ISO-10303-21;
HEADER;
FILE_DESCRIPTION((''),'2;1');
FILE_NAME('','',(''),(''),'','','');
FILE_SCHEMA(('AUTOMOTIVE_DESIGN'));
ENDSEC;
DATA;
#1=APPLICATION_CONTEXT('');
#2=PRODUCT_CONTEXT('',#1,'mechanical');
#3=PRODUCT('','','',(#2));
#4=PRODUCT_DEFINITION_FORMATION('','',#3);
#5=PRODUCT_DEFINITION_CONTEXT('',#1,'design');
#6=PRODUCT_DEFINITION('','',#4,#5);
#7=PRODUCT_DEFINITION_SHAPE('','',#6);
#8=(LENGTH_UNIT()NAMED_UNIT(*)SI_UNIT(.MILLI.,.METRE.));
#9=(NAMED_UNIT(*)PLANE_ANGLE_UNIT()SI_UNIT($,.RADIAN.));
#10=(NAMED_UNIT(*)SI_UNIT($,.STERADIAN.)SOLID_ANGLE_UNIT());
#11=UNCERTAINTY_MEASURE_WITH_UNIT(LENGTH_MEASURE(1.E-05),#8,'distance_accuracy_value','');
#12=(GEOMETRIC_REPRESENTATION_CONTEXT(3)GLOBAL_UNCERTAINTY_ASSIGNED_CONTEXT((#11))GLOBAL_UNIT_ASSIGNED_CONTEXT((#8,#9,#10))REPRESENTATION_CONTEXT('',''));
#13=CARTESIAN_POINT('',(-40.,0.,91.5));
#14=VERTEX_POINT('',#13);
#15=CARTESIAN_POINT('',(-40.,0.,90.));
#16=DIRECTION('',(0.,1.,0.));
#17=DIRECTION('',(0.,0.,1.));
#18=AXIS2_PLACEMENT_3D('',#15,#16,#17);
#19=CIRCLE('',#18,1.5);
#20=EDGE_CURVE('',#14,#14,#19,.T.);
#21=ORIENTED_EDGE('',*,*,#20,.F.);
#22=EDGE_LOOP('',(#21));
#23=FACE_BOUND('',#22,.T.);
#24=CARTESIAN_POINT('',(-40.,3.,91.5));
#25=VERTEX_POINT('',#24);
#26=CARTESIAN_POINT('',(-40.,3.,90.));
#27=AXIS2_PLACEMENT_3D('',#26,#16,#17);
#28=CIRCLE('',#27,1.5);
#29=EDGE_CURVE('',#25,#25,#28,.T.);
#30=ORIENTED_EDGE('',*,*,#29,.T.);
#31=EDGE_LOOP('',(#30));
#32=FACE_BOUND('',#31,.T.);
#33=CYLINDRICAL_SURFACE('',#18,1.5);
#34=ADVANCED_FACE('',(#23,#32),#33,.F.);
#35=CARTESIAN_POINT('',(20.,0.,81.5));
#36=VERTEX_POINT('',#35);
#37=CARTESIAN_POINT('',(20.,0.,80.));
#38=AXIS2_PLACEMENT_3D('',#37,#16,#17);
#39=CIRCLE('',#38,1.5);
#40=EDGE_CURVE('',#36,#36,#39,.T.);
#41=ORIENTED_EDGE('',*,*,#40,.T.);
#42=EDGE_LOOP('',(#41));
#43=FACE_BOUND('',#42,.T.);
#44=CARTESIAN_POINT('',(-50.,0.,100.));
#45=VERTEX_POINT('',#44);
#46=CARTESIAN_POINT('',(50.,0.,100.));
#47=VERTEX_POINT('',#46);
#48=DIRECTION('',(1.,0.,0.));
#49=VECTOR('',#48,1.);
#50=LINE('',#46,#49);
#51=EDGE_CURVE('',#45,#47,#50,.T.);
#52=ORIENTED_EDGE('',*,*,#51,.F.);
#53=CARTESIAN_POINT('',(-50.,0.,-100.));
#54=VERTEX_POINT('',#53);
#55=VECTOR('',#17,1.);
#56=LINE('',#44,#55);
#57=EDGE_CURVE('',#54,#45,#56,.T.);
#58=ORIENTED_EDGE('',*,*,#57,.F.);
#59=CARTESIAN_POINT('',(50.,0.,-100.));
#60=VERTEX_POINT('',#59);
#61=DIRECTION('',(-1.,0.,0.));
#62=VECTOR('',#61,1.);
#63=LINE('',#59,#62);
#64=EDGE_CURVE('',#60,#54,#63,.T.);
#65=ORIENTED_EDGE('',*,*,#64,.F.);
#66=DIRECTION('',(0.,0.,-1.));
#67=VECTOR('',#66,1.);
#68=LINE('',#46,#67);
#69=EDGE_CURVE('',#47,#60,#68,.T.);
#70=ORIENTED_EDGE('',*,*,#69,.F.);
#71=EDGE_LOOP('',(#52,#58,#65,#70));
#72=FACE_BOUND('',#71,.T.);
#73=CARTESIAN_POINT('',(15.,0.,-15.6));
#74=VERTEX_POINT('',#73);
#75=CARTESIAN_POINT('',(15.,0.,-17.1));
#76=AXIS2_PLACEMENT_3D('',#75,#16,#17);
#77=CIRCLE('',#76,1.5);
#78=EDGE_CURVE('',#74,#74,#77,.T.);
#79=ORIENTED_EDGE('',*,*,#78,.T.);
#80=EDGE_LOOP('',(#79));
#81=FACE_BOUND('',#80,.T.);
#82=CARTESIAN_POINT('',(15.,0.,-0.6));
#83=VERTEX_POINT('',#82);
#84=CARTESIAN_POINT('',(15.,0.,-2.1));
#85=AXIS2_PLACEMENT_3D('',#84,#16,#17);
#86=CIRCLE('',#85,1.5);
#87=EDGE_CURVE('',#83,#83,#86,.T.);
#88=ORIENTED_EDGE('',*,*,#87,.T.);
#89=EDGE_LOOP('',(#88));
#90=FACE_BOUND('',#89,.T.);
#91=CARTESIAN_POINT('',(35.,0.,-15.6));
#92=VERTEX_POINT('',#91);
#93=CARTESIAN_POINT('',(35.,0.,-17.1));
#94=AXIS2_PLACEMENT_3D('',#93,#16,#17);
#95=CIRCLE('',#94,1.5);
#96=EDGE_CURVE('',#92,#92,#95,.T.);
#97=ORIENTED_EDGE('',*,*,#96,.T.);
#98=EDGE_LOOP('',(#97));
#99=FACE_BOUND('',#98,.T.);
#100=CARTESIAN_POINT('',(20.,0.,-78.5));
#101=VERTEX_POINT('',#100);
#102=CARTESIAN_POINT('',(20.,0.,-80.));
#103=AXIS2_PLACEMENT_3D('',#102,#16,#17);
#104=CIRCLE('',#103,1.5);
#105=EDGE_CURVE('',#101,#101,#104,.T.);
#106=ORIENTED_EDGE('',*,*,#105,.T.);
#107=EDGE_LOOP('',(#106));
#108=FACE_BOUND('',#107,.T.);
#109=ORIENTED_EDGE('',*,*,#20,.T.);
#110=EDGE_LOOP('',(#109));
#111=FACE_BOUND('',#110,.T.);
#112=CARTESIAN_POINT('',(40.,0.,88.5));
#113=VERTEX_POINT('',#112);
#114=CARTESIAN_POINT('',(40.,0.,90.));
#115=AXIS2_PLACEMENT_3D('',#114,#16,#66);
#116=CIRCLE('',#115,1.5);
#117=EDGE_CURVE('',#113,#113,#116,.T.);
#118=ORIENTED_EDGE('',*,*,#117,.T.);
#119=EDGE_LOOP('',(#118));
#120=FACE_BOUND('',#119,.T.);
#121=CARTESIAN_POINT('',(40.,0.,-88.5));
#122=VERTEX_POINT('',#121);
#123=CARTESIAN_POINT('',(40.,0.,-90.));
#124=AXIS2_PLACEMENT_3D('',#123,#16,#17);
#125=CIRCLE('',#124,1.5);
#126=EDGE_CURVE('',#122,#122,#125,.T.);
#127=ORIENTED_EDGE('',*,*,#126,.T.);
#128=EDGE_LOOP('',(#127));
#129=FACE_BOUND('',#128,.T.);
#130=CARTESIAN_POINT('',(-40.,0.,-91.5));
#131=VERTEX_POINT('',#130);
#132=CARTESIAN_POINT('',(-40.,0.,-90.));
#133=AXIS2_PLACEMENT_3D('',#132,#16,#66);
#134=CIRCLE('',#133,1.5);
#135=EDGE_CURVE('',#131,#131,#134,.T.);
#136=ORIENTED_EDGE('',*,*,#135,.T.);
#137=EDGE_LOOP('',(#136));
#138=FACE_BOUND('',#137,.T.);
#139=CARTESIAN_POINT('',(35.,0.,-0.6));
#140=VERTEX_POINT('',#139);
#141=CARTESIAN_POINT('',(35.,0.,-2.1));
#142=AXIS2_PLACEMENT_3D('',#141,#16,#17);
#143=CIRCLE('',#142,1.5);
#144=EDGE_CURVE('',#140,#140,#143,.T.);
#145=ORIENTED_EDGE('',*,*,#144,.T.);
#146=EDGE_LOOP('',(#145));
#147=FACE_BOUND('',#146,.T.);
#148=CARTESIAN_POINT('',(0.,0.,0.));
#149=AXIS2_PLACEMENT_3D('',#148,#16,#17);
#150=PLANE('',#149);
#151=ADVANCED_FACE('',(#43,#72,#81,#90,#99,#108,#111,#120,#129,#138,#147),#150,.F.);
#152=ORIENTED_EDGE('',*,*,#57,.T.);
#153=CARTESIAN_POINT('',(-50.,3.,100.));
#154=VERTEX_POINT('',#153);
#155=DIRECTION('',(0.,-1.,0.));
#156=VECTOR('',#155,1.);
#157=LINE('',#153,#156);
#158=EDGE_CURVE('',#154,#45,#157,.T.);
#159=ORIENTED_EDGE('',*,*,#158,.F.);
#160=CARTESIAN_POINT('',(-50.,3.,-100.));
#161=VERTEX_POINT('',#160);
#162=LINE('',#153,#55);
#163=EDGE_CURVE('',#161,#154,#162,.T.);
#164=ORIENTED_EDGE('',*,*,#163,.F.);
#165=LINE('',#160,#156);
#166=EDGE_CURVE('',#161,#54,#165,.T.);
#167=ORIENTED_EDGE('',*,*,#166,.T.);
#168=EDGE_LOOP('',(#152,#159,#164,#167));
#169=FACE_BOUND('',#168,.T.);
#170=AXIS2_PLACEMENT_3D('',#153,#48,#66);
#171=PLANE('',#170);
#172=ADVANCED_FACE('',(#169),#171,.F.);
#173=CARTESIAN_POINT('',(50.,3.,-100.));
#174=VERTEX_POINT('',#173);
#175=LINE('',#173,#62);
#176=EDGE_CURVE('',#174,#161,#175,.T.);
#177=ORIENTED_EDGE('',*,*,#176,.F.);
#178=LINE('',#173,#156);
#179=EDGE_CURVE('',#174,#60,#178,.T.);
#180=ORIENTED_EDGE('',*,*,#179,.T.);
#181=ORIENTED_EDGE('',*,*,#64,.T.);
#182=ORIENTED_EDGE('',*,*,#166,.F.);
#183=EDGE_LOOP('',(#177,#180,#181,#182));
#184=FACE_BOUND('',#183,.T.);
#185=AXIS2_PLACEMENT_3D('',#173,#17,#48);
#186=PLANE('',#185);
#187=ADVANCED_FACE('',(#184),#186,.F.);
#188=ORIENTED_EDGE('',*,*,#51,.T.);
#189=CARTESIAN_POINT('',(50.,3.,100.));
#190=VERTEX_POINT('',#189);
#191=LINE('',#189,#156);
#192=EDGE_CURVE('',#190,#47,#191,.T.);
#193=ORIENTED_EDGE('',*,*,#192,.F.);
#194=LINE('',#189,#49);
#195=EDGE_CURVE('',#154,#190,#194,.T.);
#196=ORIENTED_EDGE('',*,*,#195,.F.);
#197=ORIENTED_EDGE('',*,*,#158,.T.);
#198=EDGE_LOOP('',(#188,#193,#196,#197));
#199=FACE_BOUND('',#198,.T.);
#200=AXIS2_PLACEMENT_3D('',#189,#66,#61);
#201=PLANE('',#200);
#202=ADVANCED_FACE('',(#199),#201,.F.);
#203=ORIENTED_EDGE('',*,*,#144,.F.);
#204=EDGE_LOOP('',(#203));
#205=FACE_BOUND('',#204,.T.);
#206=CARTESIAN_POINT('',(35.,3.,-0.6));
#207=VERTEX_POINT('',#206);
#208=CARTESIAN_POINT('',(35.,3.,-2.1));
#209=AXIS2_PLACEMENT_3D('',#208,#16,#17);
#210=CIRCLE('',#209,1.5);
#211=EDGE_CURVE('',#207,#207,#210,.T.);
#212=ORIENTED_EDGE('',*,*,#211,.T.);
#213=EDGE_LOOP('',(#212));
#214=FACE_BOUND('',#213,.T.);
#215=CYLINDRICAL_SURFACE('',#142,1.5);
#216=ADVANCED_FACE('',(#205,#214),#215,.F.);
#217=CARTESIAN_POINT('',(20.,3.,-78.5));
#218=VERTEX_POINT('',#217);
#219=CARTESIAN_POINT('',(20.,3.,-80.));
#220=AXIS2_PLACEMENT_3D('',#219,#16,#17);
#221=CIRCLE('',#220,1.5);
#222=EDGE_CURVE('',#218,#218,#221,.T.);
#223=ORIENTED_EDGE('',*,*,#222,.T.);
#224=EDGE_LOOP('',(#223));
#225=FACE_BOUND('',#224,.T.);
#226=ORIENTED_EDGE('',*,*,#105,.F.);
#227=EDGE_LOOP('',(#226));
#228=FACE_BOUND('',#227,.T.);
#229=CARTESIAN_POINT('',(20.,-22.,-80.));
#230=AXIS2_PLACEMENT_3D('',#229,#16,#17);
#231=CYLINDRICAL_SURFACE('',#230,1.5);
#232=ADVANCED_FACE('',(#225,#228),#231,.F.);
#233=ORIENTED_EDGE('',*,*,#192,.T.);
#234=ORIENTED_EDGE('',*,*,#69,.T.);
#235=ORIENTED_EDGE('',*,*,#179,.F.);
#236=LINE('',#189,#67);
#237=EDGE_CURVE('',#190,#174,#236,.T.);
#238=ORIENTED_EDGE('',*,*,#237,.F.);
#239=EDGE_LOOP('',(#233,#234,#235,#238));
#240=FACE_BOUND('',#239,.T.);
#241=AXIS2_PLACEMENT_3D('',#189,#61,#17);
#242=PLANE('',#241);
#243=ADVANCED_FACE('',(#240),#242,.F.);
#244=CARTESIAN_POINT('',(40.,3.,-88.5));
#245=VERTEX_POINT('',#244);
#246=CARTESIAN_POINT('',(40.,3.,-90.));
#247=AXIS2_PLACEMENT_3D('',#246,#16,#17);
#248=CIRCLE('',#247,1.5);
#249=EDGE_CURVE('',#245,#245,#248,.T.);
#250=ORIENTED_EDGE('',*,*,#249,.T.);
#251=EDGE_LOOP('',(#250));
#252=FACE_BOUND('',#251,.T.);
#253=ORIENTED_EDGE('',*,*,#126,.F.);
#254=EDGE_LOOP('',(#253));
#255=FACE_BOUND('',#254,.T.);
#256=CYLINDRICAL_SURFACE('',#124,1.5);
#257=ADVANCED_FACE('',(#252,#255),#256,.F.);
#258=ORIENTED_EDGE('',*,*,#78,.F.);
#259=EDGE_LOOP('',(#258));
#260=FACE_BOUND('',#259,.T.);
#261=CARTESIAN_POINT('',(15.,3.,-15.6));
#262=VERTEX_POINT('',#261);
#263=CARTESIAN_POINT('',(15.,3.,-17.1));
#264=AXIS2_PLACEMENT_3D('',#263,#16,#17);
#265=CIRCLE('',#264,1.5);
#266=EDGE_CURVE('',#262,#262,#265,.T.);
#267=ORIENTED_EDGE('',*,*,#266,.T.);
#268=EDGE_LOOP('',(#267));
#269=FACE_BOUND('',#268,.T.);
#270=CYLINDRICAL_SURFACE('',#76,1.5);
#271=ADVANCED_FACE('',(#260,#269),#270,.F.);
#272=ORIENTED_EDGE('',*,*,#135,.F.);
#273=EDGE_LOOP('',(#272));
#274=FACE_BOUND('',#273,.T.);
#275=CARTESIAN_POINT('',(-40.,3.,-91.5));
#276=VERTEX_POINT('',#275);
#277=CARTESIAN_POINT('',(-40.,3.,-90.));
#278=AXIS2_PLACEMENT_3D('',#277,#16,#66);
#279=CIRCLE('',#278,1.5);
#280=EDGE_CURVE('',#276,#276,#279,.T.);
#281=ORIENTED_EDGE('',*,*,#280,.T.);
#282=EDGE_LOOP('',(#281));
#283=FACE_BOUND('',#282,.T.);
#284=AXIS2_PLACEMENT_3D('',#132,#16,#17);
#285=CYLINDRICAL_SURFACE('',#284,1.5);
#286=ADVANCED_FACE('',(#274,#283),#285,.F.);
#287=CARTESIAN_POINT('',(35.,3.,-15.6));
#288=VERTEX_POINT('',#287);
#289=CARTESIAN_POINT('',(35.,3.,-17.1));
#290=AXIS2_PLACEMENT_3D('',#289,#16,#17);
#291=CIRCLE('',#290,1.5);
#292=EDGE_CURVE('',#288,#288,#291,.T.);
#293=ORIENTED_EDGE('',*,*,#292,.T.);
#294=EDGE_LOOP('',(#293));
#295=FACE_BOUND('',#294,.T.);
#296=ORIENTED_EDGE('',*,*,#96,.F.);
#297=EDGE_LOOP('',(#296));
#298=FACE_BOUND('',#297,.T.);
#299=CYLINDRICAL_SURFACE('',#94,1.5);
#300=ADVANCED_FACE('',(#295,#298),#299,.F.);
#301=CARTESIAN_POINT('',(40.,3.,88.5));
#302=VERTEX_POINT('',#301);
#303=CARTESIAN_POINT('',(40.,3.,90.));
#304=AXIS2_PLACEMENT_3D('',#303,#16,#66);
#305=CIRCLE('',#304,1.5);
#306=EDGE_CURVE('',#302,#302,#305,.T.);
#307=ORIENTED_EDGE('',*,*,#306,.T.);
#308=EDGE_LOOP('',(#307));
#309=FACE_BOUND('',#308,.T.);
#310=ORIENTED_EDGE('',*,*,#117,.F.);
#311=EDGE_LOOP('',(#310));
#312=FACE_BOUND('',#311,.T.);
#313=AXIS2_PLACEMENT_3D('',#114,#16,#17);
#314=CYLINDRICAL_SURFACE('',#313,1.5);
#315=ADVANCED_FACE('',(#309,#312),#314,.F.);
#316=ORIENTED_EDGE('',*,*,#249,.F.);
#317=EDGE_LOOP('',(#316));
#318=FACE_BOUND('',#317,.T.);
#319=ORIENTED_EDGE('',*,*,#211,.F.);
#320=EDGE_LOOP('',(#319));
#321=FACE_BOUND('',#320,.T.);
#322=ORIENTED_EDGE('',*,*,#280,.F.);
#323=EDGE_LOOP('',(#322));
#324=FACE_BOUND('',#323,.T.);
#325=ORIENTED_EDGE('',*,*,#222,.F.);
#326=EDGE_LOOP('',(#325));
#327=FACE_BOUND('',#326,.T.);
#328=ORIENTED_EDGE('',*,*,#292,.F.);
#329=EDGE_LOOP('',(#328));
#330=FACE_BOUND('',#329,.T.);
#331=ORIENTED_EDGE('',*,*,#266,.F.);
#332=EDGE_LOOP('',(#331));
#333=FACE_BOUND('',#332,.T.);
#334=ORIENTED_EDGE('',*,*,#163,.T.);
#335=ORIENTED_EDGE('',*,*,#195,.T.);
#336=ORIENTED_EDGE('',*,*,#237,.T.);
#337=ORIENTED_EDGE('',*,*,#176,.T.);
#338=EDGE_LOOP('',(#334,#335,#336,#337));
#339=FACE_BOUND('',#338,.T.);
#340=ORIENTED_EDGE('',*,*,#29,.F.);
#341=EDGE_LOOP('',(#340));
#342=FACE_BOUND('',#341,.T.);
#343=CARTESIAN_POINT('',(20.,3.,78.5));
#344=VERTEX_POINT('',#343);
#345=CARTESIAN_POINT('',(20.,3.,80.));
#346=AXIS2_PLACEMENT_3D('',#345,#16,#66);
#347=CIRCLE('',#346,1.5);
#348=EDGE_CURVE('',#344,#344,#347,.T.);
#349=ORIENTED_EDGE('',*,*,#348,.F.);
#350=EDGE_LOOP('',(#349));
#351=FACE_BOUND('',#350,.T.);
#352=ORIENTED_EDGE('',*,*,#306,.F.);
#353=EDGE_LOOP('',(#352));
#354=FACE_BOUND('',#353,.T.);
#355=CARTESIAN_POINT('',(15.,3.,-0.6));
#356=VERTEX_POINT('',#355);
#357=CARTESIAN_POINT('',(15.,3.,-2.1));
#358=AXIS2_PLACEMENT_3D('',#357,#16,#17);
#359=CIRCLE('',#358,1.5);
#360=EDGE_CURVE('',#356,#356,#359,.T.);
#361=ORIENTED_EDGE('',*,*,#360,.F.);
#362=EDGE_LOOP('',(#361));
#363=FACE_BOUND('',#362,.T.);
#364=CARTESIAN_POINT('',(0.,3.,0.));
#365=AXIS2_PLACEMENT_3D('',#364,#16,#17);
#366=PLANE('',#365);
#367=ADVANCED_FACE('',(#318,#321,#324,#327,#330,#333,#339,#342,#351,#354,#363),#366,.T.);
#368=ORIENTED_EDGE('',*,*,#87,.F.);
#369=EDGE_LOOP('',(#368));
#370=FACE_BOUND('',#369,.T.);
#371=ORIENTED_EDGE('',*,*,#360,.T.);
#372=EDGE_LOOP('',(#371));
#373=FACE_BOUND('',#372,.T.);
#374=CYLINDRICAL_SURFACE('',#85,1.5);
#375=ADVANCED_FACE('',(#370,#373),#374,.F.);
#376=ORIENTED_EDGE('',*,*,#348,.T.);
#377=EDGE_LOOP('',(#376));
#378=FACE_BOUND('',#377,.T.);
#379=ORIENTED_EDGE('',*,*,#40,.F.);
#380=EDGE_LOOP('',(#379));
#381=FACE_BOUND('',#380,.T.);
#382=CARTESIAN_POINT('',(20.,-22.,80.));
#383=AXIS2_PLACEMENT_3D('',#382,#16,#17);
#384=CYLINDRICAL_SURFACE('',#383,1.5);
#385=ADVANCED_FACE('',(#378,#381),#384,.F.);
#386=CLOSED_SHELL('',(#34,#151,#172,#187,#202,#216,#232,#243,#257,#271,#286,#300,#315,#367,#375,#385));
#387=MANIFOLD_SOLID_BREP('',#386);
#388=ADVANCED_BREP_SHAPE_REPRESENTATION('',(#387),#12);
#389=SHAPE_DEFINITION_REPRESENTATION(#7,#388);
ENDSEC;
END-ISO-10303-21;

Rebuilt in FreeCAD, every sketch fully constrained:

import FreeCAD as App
import Part
import Sketcher
from FreeCAD import Vector

doc = App.newDocument("Part")
body = doc.addObject("PartDesign::Body", "Body")

sketch1 = doc.addObject("Sketcher::SketchObject", "Sketch")
body.addObject(sketch1)
sketch1.AttachmentSupport = (doc.XZ_Plane, [""])
sketch1.MapMode = "FlatFace"
sketch1.addGeometry([
    Part.LineSegment(Vector(-50, -100, 0), Vector(-50, 100, 0)),
    Part.LineSegment(Vector(-50, 100, 0), Vector(50, 100, 0)),
    Part.LineSegment(Vector(50, 100, 0), Vector(50, -100, 0)),
    Part.LineSegment(Vector(50, -100, 0), Vector(-50, -100, 0)),
], False)
sketch1.addConstraint([
    Sketcher.Constraint("Coincident", 0, 2, 1, 1),
    Sketcher.Constraint("Coincident", 1, 2, 2, 1),
    Sketcher.Constraint("Coincident", 2, 2, 3, 1),
    Sketcher.Constraint("Coincident", 3, 2, 0, 1),
    Sketcher.Constraint("Vertical", 0),
    Sketcher.Constraint("Horizontal", 1),
    Sketcher.Constraint("Vertical", 2),
    Sketcher.Constraint("Horizontal", 3),
    Sketcher.Constraint("Symmetric", 0, 2, 2, 2, -1, 1),
    Sketcher.Constraint("DistanceX", 1, 1, 1, 2, 100.0),
    Sketcher.Constraint("DistanceY", 0, 1, 0, 2, 200.0),
])
pad1 = doc.addObject("PartDesign::Pad", "Pad")
body.addObject(pad1)
pad1.Profile = sketch1
pad1.Length = 3
pad1.Reversed = True

sketch2 = doc.addObject("Sketcher::SketchObject", "Sketch001")
body.addObject(sketch2)
sketch2.AttachmentSupport = (doc.XZ_Plane, [""])
sketch2.MapMode = "FlatFace"
sketch2.AttachmentOffset = App.Placement(Vector(0, 0, -3), App.Rotation())
sketch2.addGeometry([
    Part.Circle(Vector(-40, 90, 0), Vector(0, 0, 1), 1.5),
    Part.Circle(Vector(40, 90, 0), Vector(0, 0, 1), 1.5),
    Part.Circle(Vector(40, -90, 0), Vector(0, 0, 1), 1.5),
    Part.Circle(Vector(-40, -90, 0), Vector(0, 0, 1), 1.5),
], False)
sketch2.addConstraint([
    Sketcher.Constraint("Equal", 0, 1),
    Sketcher.Constraint("Equal", 1, 2),
    Sketcher.Constraint("Equal", 2, 3),
    Sketcher.Constraint("Symmetric", 0, 3, 2, 3, -1, 1),
    Sketcher.Constraint("Symmetric", 1, 3, 3, 3, -1, 1),
    Sketcher.Constraint("Symmetric", 0, 3, 1, 3, -2),
    Sketcher.Constraint("Diameter", 0, 3.0),
    Sketcher.Constraint("DistanceX", 0, 3, -1, 1, 40.0),
    Sketcher.Constraint("DistanceY", -1, 1, 0, 3, 90.0),
])
pocket1 = doc.addObject("PartDesign::Pocket", "Pocket")
body.addObject(pocket1)
pocket1.Profile = sketch2
pocket1.Length = 3
pocket1.Reversed = True

sketch3 = doc.addObject("Sketcher::SketchObject", "Sketch002")
body.addObject(sketch3)
sketch3.AttachmentSupport = (doc.XZ_Plane, [""])
sketch3.MapMode = "FlatFace"
sketch3.AttachmentOffset = App.Placement(Vector(0, 0, -3), App.Rotation())
sketch3.addGeometry([
    Part.Circle(Vector(20, -80, 0), Vector(0, 0, 1), 1.5),
    Part.Circle(Vector(20, 80, 0), Vector(0, 0, 1), 1.5),
], False)
sketch3.addConstraint([
    Sketcher.Constraint("Equal", 0, 1),
    Sketcher.Constraint("Symmetric", 0, 3, 1, 3, -1),
    Sketcher.Constraint("Diameter", 0, 3.0),
    Sketcher.Constraint("DistanceX", -1, 1, 0, 3, 20.0),
    Sketcher.Constraint("DistanceY", 0, 3, -1, 1, 80.0),
])
pocket2 = doc.addObject("PartDesign::Pocket", "Pocket001")
body.addObject(pocket2)
pocket2.Profile = sketch3
pocket2.Length = 25
pocket2.Reversed = True

sketch4 = doc.addObject("Sketcher::SketchObject", "Sketch003")
body.addObject(sketch4)
sketch4.AttachmentSupport = (doc.XZ_Plane, [""])
sketch4.MapMode = "FlatFace"
sketch4.AttachmentOffset = App.Placement(Vector(0, 0, -3), App.Rotation())
sketch4.addGeometry([
    Part.Circle(Vector(35, -17.1, 0), Vector(0, 0, 1), 1.5),
    Part.Circle(Vector(15, -2.1, 0), Vector(0, 0, 1), 1.5),
    Part.Circle(Vector(15, -17.1, 0), Vector(0, 0, 1), 1.5),
    Part.Circle(Vector(35, -2.1, 0), Vector(0, 0, 1), 1.5),
], False)
sketch4.addConstraint([
    Sketcher.Constraint("Equal", 0, 1),
    Sketcher.Constraint("Equal", 1, 2),
    Sketcher.Constraint("Equal", 2, 3),
    Sketcher.Constraint("Horizontal", 0, 3, 2, 3),
    Sketcher.Constraint("Horizontal", 1, 3, 3, 3),
    Sketcher.Constraint("Vertical", 1, 3, 2, 3),
    Sketcher.Constraint("Vertical", 0, 3, 3, 3),
    Sketcher.Constraint("Diameter", 0, 3.0),
    Sketcher.Constraint("DistanceX", -1, 1, 0, 3, 35.0),
    Sketcher.Constraint("DistanceX", -1, 1, 1, 3, 15.0),
    Sketcher.Constraint("DistanceY", 0, 3, 1, 3, 15.0),
    Sketcher.Constraint("DistanceY", 0, 3, -1, 1, 17.1),
])
pocket3 = doc.addObject("PartDesign::Pocket", "Pocket002")
body.addObject(pocket3)
pocket3.Profile = sketch4
pocket3.Length = 3
pocket3.Reversed = True

doc.recompute()
